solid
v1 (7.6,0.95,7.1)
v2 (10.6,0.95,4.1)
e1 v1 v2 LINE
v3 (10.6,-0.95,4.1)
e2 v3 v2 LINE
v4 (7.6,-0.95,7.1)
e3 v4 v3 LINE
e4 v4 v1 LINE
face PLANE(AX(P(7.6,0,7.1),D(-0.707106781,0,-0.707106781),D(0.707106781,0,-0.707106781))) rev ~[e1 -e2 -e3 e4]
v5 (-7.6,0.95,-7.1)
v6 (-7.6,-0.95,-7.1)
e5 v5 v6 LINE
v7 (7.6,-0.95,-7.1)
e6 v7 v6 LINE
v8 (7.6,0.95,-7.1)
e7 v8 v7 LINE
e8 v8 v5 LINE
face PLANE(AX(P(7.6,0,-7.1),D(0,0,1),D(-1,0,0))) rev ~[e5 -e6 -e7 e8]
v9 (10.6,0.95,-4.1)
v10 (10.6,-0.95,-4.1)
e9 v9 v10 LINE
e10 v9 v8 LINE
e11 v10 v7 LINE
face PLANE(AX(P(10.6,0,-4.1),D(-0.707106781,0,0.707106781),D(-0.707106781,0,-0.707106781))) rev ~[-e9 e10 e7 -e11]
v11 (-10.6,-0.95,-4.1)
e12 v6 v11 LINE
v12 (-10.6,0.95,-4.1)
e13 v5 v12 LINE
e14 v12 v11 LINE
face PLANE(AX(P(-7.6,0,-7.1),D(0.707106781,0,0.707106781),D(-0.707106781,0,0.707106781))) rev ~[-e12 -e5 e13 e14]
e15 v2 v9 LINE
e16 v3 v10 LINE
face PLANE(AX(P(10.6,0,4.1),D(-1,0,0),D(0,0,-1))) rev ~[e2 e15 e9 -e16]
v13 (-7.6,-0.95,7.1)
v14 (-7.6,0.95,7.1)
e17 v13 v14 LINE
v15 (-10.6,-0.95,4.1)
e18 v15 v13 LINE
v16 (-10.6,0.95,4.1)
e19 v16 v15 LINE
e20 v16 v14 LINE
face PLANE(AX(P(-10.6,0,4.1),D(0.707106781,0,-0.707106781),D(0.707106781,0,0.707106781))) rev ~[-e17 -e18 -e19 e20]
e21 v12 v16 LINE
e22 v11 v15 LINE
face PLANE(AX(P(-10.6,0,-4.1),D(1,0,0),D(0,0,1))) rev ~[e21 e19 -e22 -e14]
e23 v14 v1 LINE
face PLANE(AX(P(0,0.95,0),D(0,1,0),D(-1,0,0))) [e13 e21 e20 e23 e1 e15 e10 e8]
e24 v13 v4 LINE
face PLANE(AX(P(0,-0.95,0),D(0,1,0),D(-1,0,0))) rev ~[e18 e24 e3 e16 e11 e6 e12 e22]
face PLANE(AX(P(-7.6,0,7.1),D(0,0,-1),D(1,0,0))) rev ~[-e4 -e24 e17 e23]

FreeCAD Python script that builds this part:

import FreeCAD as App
import Part
import Sketcher
from FreeCAD import Vector
Q = App.Units.Quantity

doc = App.newDocument("Part")
params = doc.addObject("Spreadsheet::Sheet", "Params")
for row, (alias, value) in enumerate([
    ("pad1_length", "1.9 mm"),
], start=1):
    params.set(f"A{row}", alias)
    params.set(f"B{row}", "=" + value)
    params.setAlias(f"B{row}", alias)

body = doc.addObject("PartDesign::Body", "Body")

# Sketch on XZ plane
sketch1 = doc.addObject("Sketcher::SketchObject", "Sketch")
body.addObject(sketch1)
sketch1.AttachmentSupport = (doc.XZ_Plane, [""])
sketch1.MapMode = "FlatFace"
sketch1.addGeometry(Part.LineSegment(Vector(-10.6, 4.1, 0), Vector(-7.6, 7.1, 0)), False)
sketch1.addGeometry(Part.LineSegment(Vector(-7.6, 7.1, 0), Vector(7.6, 7.1, 0)), False)
sketch1.addGeometry(Part.LineSegment(Vector(7.6, 7.1, 0), Vector(10.6, 4.1, 0)), False)
sketch1.addGeometry(Part.LineSegment(Vector(10.6, 4.1, 0), Vector(10.6, -4.1, 0)), False)
sketch1.addGeometry(Part.LineSegment(Vector(10.6, -4.1, 0), Vector(7.6, -7.1, 0)), False)
sketch1.addGeometry(Part.LineSegment(Vector(7.6, -7.1, 0), Vector(-7.6, -7.1, 0)), False)
sketch1.addGeometry(Part.LineSegment(Vector(-7.6, -7.1, 0), Vector(-10.6, -4.1, 0)), False)
sketch1.addGeometry(Part.LineSegment(Vector(-10.6, -4.1, 0), Vector(-10.6, 4.1, 0)), False)
sketch1.addConstraint(Sketcher.Constraint("Coincident", 0, 2, 1, 1))
sketch1.addConstraint(Sketcher.Constraint("Coincident", 1, 2, 2, 1))
sketch1.addConstraint(Sketcher.Constraint("Coincident", 2, 2, 3, 1))
sketch1.addConstraint(Sketcher.Constraint("Coincident", 3, 2, 4, 1))
sketch1.addConstraint(Sketcher.Constraint("Coincident", 4, 2, 5, 1))
sketch1.addConstraint(Sketcher.Constraint("Coincident", 5, 2, 6, 1))
sketch1.addConstraint(Sketcher.Constraint("Coincident", 6, 2, 7, 1))
sketch1.addConstraint(Sketcher.Constraint("Coincident", 7, 2, 0, 1))
sketch1.addConstraint(Sketcher.Constraint("Horizontal", 1))
sketch1.addConstraint(Sketcher.Constraint("Vertical", 3))
sketch1.addConstraint(Sketcher.Constraint("Horizontal", 5))
sketch1.addConstraint(Sketcher.Constraint("Vertical", 7))
sketch1.addConstraint(Sketcher.Constraint("Symmetric", 0, 2, 4, 2, -1, 1))
sketch1.addConstraint(Sketcher.Constraint("Symmetric", 2, 2, 6, 2, -1, 1))
sketch1.addConstraint(Sketcher.Constraint("Perpendicular", 0, 2))
sketch1.addConstraint(Sketcher.Constraint("Perpendicular", 2, 4))
sketch1.addConstraint(Sketcher.Constraint("Perpendicular", 4, 6))
sketch1.addConstraint(Sketcher.Constraint("Horizontal", 3, 2, 6, 2))
sketch1.addConstraint(Sketcher.Constraint("Vertical", 1, 2, 4, 2))
sketch1.addConstraint(Sketcher.Constraint("DistanceX", 1, 2, 2, 2, Q("3 mm")))
sketch1.addConstraint(Sketcher.Constraint("DistanceY", 4, 2, 1, 2, Q("14.2 mm")))
sketch1.addConstraint(Sketcher.Constraint("DistanceX", 6, 2, 3, 2, Q("21.2 mm")))
pad1 = doc.addObject("PartDesign::Pad", "Pad")
body.addObject(pad1)
pad1.Profile = sketch1
pad1.setExpression("Length", "Params.pad1_length")
pad1.Midplane = True

doc.recompute()
